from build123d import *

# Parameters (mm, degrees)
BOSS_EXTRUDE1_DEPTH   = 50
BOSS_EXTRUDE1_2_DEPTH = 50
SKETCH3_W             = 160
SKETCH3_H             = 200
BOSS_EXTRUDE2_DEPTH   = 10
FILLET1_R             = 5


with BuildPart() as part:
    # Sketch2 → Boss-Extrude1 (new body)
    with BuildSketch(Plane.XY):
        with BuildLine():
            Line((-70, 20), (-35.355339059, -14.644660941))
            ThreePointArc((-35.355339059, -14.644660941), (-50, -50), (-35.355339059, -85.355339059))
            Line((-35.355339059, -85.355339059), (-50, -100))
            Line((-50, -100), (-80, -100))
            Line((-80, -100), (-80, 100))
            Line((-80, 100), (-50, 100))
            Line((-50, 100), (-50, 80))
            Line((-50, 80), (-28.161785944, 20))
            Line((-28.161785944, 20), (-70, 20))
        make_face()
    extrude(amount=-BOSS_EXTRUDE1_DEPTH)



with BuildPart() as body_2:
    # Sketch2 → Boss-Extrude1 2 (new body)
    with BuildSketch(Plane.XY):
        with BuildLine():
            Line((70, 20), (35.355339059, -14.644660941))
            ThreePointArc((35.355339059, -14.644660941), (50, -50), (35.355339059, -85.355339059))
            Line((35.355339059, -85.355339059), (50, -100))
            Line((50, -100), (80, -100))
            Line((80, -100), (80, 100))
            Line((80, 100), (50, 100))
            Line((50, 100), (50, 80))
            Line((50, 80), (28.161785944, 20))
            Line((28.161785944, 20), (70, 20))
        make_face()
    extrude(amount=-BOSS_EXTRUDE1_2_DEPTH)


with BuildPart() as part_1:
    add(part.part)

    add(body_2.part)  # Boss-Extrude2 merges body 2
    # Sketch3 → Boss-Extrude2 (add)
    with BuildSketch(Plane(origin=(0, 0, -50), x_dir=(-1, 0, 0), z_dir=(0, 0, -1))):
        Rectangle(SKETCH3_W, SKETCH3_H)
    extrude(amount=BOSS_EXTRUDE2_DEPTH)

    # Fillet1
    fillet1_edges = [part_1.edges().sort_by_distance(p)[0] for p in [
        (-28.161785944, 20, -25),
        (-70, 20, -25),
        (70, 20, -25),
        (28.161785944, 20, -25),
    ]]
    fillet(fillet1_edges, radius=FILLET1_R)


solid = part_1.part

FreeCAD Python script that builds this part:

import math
import FreeCAD as App
import Part
import Sketcher
from FreeCAD import Vector
Q = App.Units.Quantity


def edges_at(feature, points):
    """Names of the edges that pass closest to the given points."""
    edges = feature.Shape.Edges
    near = lambda p: min(range(len(edges)), key=lambda i: edges[i].distToShape(Part.Vertex(*p))[0])
    return sorted({f"Edge{near(p) + 1}" for p in points})

doc = App.newDocument("Part")
params = doc.addObject("Spreadsheet::Sheet", "Params")
for row, (alias, value) in enumerate([
    ("sketch1_radius", "50 mm"),
    ("sketch1_width", "30 mm"),
    ("sketch1_height", "20 mm"),
    ("sketch1_height2", "200 mm"),
    ("pad1_length", "50 mm"),
    ("sketch2_radius", "50 mm"),
    ("sketch2_width", "30 mm"),
    ("sketch2_height", "200 mm"),
    ("sketch2_height2", "20 mm"),
    ("pad2_length", "50 mm"),
    ("sketch3_width", "160 mm"),
    ("sketch3_height", "200 mm"),
    ("pad3_length", "10 mm"),
    ("fillet_radius", "5 mm"),
], start=1):
    params.set(f"A{row}", alias)
    params.set(f"B{row}", "=" + value)
    params.setAlias(f"B{row}", alias)

body = doc.addObject("PartDesign::Body", "Body")

sketch1 = doc.addObject("Sketcher::SketchObject", "Sketch")
body.addObject(sketch1)
sketch1.AttachmentSupport = (doc.XY_Plane, [""])
sketch1.MapMode = "FlatFace"
sketch1.addGeometry([
    Part.LineSegment(Vector(-35, -15, 0), Vector(-70, 20, 0)),
    Part.LineSegment(Vector(-70, 20, 0), Vector(-28, 20, 0)),
    Part.LineSegment(Vector(-28, 20, 0), Vector(-50, 80, 0)),
    Part.LineSegment(Vector(-50, 80, 0), Vector(-50, 100, 0)),
    Part.LineSegment(Vector(-50, 100, 0), Vector(-80, 100, 0)),
    Part.LineSegment(Vector(-80, 100, 0), Vector(-80, -100, 0)),
    Part.LineSegment(Vector(-80, -100, 0), Vector(-50, -100, 0)),
    Part.LineSegment(Vector(-50, -100, 0), Vector(-35, -85, 0)),
    Part.ArcOfCircle(Part.Circle(Vector(0, -50, 0), Vector(0, 0, 1), 50), math.radians(135), math.radians(225)),
], False)
sketch1.addConstraint([
    Sketcher.Constraint("Coincident", 0, 2, 1, 1),
    Sketcher.Constraint("Coincident", 1, 2, 2, 1),
    Sketcher.Constraint("Coincident", 2, 2, 3, 1),
    Sketcher.Constraint("Coincident", 3, 2, 4, 1),
    Sketcher.Constraint("Coincident", 4, 2, 5, 1),
    Sketcher.Constraint("Coincident", 5, 2, 6, 1),
    Sketcher.Constraint("Coincident", 6, 2, 7, 1),
    Sketcher.Constraint("Coincident", 7, 2, 8, 2),
    Sketcher.Constraint("Coincident", 8, 1, 0, 1),
    Sketcher.Constraint("Horizontal", 1),
    Sketcher.Constraint("Vertical", 3),
    Sketcher.Constraint("Horizontal", 4),
    Sketcher.Constraint("Vertical", 5),
    Sketcher.Constraint("Horizontal", 6),
    Sketcher.Constraint("Symmetric", 3, 2, 6, 2, -1),
    Sketcher.Constraint("PointOnObject", 8, 3, -2),
    Sketcher.Constraint("Perpendicular", 0, 7),
    Sketcher.Constraint("Vertical", 7, 2, 8, 1),
    Sketcher.Constraint("Radius", 8, Q("50 mm")),
    Sketcher.Constraint("DistanceX", 4, 2, 4, 1, Q("30 mm")),
    Sketcher.Constraint("DistanceY", 3, 1, 3, 2, Q("20 mm")),
    Sketcher.Constraint("DistanceY", 5, 2, 5, 1, Q("200 mm")),
    Sketcher.Constraint("Angle", 0, Q("135 deg")),
    Sketcher.Constraint("Angle", 2, Q("110 deg")),
    Sketcher.Constraint("DistanceY", 8, 3, -1, 1, Q("50 mm")),
    Sketcher.Constraint("DistanceX", 0, 2, -1, 1, Q("70 mm")),
    Sketcher.Constraint("DistanceY", -1, 1, 0, 2, Q("20 mm")),
])
sketch1.setExpression("Constraints[18]", "Params.sketch1_radius")
sketch1.setExpression("Constraints[19]", "Params.sketch1_width")
sketch1.setExpression("Constraints[20]", "Params.sketch1_height")
sketch1.setExpression("Constraints[21]", "Params.sketch1_height2")
pad1 = doc.addObject("PartDesign::Pad", "Pad")
body.addObject(pad1)
pad1.Profile = sketch1
pad1.setExpression("Length", "Params.pad1_length")
pad1.Reversed = True
body2 = doc.addObject("PartDesign::Body", "Body001")

sketch2 = doc.addObject("Sketcher::SketchObject", "Sketch001")
body2.addObject(sketch2)
sketch2.AttachmentSupport = (doc.getObject("XY_Plane001"), [""])
sketch2.MapMode = "FlatFace"
sketch2.addGeometry([
    Part.LineSegment(Vector(70, 20, 0), Vector(35, -15, 0)),
    Part.ArcOfCircle(Part.Circle(Vector(0, -50, 0), Vector(0, 0, 1), 50), math.radians(-45), math.radians(45)),
    Part.LineSegment(Vector(35, -85, 0), Vector(50, -100, 0)),
    Part.LineSegment(Vector(50, -100, 0), Vector(80, -100, 0)),
    Part.LineSegment(Vector(80, -100, 0), Vector(80, 100, 0)),
    Part.LineSegment(Vector(80, 100, 0), Vector(50, 100, 0)),
    Part.LineSegment(Vector(50, 100, 0), Vector(50, 80, 0)),
    Part.LineSegment(Vector(50, 80, 0), Vector(28, 20, 0)),
    Part.LineSegment(Vector(28, 20, 0), Vector(70, 20, 0)),
], False)
sketch2.addConstraint([
    Sketcher.Constraint("Coincident", 0, 2, 1, 2),
    Sketcher.Constraint("Coincident", 1, 1, 2, 1),
    Sketcher.Constraint("Coincident", 2, 2, 3, 1),
    Sketcher.Constraint("Coincident", 3, 2, 4, 1),
    Sketcher.Constraint("Coincident", 4, 2, 5, 1),
    Sketcher.Constraint("Coincident", 5, 2, 6, 1),
    Sketcher.Constraint("Coincident", 6, 2, 7, 1),
    Sketcher.Constraint("Coincident", 7, 2, 8, 1),
    Sketcher.Constraint("Coincident", 8, 2, 0, 1),
    Sketcher.Constraint("Horizontal", 3),
    Sketcher.Constraint("Vertical", 4),
    Sketcher.Constraint("Horizontal", 5),
    Sketcher.Constraint("Vertical", 6),
    Sketcher.Constraint("Horizontal", 8),
    Sketcher.Constraint("Symmetric", 2, 2, 5, 2, -1),
    Sketcher.Constraint("PointOnObject", 1, 3, -2),
    Sketcher.Constraint("Perpendicular", 0, 2),
    Sketcher.Constraint("Vertical", 0, 2, 1, 1),
    Sketcher.Constraint("Radius", 1, Q("50 mm")),
    Sketcher.Constraint("DistanceX", 3, 1, 3, 2, Q("30 mm")),
    Sketcher.Constraint("DistanceY", 4, 1, 4, 2, Q("200 mm")),
    Sketcher.Constraint("DistanceY", 6, 2, 6, 1, Q("20 mm")),
    Sketcher.Constraint("Angle", 0, Q("-135 deg")),
    Sketcher.Constraint("Angle", 7, Q("-110 deg")),
    Sketcher.Constraint("DistanceY", 1, 3, -1, 1, Q("50 mm")),
    Sketcher.Constraint("DistanceX", -1, 1, 2, 2, Q("50 mm")),
    Sketcher.Constraint("DistanceY", -1, 1, 7, 2, Q("20 mm")),
])
sketch2.setExpression("Constraints[18]", "Params.sketch2_radius")
sketch2.setExpression("Constraints[19]", "Params.sketch2_width")
sketch2.setExpression("Constraints[20]", "Params.sketch2_height")
sketch2.setExpression("Constraints[21]", "Params.sketch2_height2")
pad2 = doc.addObject("PartDesign::Pad", "Pad001")
body2.addObject(pad2)
pad2.Profile = sketch2
pad2.setExpression("Length", "Params.pad2_length")
pad2.Reversed = True
body.AllowCompound = True
doc.recompute()

boolean = doc.addObject("PartDesign::Boolean", "Boolean")
body.addObject(boolean)
boolean.Type = "Fuse"
boolean.addObjects([body2])

sketch3 = doc.addObject("Sketcher::SketchObject", "Sketch002")
body.addObject(sketch3)
sketch3.AttachmentSupport = (doc.XY_Plane, [""])
sketch3.MapMode = "FlatFace"
sketch3.AttachmentOffset = App.Placement(Vector(0, 0, -50), App.Rotation())
sketch3.addGeometry([
    Part.LineSegment(Vector(80, 100, 0), Vector(80, -100, 0)),
    Part.LineSegment(Vector(80, -100, 0), Vector(-80, -100, 0)),
    Part.LineSegment(Vector(-80, -100, 0), Vector(-80, 100, 0)),
    Part.LineSegment(Vector(-80, 100, 0), Vector(80, 100, 0)),
], False)
sketch3.addConstraint([
    Sketcher.Constraint("Coincident", 0, 2, 1, 1),
    Sketcher.Constraint("Coincident", 1, 2, 2, 1),
    Sketcher.Constraint("Coincident", 2, 2, 3, 1),
    Sketcher.Constraint("Coincident", 3, 2, 0, 1),
    Sketcher.Constraint("Vertical", 0),
    Sketcher.Constraint("Horizontal", 1),
    Sketcher.Constraint("Vertical", 2),
    Sketcher.Constraint("Horizontal", 3),
    Sketcher.Constraint("Symmetric", 0, 2, 2, 2, -1, 1),
    Sketcher.Constraint("DistanceX", 1, 2, 1, 1, Q("160 mm")),
    Sketcher.Constraint("DistanceY", 0, 2, 0, 1, Q("200 mm")),
])
sketch3.setExpression("Constraints[9]", "Params.sketch3_width")
sketch3.setExpression("Constraints[10]", "Params.sketch3_height")
pad3 = doc.addObject("PartDesign::Pad", "Pad002")
body.addObject(pad3)
pad3.Profile = sketch3
pad3.setExpression("Length", "Params.pad3_length")
pad3.Reversed = True
doc.recompute()

fillet = doc.addObject("PartDesign::Fillet", "Fillet")
body.addObject(fillet)
fillet.Base = (pad3, edges_at(pad3, [
    (-28.162, 20, -25),
    (-70, 20, -25),
    (70, 20, -25),
    (28.162, 20, -25),
]))
fillet.setExpression("Radius", "Params.fillet_radius")

doc.recompute()
